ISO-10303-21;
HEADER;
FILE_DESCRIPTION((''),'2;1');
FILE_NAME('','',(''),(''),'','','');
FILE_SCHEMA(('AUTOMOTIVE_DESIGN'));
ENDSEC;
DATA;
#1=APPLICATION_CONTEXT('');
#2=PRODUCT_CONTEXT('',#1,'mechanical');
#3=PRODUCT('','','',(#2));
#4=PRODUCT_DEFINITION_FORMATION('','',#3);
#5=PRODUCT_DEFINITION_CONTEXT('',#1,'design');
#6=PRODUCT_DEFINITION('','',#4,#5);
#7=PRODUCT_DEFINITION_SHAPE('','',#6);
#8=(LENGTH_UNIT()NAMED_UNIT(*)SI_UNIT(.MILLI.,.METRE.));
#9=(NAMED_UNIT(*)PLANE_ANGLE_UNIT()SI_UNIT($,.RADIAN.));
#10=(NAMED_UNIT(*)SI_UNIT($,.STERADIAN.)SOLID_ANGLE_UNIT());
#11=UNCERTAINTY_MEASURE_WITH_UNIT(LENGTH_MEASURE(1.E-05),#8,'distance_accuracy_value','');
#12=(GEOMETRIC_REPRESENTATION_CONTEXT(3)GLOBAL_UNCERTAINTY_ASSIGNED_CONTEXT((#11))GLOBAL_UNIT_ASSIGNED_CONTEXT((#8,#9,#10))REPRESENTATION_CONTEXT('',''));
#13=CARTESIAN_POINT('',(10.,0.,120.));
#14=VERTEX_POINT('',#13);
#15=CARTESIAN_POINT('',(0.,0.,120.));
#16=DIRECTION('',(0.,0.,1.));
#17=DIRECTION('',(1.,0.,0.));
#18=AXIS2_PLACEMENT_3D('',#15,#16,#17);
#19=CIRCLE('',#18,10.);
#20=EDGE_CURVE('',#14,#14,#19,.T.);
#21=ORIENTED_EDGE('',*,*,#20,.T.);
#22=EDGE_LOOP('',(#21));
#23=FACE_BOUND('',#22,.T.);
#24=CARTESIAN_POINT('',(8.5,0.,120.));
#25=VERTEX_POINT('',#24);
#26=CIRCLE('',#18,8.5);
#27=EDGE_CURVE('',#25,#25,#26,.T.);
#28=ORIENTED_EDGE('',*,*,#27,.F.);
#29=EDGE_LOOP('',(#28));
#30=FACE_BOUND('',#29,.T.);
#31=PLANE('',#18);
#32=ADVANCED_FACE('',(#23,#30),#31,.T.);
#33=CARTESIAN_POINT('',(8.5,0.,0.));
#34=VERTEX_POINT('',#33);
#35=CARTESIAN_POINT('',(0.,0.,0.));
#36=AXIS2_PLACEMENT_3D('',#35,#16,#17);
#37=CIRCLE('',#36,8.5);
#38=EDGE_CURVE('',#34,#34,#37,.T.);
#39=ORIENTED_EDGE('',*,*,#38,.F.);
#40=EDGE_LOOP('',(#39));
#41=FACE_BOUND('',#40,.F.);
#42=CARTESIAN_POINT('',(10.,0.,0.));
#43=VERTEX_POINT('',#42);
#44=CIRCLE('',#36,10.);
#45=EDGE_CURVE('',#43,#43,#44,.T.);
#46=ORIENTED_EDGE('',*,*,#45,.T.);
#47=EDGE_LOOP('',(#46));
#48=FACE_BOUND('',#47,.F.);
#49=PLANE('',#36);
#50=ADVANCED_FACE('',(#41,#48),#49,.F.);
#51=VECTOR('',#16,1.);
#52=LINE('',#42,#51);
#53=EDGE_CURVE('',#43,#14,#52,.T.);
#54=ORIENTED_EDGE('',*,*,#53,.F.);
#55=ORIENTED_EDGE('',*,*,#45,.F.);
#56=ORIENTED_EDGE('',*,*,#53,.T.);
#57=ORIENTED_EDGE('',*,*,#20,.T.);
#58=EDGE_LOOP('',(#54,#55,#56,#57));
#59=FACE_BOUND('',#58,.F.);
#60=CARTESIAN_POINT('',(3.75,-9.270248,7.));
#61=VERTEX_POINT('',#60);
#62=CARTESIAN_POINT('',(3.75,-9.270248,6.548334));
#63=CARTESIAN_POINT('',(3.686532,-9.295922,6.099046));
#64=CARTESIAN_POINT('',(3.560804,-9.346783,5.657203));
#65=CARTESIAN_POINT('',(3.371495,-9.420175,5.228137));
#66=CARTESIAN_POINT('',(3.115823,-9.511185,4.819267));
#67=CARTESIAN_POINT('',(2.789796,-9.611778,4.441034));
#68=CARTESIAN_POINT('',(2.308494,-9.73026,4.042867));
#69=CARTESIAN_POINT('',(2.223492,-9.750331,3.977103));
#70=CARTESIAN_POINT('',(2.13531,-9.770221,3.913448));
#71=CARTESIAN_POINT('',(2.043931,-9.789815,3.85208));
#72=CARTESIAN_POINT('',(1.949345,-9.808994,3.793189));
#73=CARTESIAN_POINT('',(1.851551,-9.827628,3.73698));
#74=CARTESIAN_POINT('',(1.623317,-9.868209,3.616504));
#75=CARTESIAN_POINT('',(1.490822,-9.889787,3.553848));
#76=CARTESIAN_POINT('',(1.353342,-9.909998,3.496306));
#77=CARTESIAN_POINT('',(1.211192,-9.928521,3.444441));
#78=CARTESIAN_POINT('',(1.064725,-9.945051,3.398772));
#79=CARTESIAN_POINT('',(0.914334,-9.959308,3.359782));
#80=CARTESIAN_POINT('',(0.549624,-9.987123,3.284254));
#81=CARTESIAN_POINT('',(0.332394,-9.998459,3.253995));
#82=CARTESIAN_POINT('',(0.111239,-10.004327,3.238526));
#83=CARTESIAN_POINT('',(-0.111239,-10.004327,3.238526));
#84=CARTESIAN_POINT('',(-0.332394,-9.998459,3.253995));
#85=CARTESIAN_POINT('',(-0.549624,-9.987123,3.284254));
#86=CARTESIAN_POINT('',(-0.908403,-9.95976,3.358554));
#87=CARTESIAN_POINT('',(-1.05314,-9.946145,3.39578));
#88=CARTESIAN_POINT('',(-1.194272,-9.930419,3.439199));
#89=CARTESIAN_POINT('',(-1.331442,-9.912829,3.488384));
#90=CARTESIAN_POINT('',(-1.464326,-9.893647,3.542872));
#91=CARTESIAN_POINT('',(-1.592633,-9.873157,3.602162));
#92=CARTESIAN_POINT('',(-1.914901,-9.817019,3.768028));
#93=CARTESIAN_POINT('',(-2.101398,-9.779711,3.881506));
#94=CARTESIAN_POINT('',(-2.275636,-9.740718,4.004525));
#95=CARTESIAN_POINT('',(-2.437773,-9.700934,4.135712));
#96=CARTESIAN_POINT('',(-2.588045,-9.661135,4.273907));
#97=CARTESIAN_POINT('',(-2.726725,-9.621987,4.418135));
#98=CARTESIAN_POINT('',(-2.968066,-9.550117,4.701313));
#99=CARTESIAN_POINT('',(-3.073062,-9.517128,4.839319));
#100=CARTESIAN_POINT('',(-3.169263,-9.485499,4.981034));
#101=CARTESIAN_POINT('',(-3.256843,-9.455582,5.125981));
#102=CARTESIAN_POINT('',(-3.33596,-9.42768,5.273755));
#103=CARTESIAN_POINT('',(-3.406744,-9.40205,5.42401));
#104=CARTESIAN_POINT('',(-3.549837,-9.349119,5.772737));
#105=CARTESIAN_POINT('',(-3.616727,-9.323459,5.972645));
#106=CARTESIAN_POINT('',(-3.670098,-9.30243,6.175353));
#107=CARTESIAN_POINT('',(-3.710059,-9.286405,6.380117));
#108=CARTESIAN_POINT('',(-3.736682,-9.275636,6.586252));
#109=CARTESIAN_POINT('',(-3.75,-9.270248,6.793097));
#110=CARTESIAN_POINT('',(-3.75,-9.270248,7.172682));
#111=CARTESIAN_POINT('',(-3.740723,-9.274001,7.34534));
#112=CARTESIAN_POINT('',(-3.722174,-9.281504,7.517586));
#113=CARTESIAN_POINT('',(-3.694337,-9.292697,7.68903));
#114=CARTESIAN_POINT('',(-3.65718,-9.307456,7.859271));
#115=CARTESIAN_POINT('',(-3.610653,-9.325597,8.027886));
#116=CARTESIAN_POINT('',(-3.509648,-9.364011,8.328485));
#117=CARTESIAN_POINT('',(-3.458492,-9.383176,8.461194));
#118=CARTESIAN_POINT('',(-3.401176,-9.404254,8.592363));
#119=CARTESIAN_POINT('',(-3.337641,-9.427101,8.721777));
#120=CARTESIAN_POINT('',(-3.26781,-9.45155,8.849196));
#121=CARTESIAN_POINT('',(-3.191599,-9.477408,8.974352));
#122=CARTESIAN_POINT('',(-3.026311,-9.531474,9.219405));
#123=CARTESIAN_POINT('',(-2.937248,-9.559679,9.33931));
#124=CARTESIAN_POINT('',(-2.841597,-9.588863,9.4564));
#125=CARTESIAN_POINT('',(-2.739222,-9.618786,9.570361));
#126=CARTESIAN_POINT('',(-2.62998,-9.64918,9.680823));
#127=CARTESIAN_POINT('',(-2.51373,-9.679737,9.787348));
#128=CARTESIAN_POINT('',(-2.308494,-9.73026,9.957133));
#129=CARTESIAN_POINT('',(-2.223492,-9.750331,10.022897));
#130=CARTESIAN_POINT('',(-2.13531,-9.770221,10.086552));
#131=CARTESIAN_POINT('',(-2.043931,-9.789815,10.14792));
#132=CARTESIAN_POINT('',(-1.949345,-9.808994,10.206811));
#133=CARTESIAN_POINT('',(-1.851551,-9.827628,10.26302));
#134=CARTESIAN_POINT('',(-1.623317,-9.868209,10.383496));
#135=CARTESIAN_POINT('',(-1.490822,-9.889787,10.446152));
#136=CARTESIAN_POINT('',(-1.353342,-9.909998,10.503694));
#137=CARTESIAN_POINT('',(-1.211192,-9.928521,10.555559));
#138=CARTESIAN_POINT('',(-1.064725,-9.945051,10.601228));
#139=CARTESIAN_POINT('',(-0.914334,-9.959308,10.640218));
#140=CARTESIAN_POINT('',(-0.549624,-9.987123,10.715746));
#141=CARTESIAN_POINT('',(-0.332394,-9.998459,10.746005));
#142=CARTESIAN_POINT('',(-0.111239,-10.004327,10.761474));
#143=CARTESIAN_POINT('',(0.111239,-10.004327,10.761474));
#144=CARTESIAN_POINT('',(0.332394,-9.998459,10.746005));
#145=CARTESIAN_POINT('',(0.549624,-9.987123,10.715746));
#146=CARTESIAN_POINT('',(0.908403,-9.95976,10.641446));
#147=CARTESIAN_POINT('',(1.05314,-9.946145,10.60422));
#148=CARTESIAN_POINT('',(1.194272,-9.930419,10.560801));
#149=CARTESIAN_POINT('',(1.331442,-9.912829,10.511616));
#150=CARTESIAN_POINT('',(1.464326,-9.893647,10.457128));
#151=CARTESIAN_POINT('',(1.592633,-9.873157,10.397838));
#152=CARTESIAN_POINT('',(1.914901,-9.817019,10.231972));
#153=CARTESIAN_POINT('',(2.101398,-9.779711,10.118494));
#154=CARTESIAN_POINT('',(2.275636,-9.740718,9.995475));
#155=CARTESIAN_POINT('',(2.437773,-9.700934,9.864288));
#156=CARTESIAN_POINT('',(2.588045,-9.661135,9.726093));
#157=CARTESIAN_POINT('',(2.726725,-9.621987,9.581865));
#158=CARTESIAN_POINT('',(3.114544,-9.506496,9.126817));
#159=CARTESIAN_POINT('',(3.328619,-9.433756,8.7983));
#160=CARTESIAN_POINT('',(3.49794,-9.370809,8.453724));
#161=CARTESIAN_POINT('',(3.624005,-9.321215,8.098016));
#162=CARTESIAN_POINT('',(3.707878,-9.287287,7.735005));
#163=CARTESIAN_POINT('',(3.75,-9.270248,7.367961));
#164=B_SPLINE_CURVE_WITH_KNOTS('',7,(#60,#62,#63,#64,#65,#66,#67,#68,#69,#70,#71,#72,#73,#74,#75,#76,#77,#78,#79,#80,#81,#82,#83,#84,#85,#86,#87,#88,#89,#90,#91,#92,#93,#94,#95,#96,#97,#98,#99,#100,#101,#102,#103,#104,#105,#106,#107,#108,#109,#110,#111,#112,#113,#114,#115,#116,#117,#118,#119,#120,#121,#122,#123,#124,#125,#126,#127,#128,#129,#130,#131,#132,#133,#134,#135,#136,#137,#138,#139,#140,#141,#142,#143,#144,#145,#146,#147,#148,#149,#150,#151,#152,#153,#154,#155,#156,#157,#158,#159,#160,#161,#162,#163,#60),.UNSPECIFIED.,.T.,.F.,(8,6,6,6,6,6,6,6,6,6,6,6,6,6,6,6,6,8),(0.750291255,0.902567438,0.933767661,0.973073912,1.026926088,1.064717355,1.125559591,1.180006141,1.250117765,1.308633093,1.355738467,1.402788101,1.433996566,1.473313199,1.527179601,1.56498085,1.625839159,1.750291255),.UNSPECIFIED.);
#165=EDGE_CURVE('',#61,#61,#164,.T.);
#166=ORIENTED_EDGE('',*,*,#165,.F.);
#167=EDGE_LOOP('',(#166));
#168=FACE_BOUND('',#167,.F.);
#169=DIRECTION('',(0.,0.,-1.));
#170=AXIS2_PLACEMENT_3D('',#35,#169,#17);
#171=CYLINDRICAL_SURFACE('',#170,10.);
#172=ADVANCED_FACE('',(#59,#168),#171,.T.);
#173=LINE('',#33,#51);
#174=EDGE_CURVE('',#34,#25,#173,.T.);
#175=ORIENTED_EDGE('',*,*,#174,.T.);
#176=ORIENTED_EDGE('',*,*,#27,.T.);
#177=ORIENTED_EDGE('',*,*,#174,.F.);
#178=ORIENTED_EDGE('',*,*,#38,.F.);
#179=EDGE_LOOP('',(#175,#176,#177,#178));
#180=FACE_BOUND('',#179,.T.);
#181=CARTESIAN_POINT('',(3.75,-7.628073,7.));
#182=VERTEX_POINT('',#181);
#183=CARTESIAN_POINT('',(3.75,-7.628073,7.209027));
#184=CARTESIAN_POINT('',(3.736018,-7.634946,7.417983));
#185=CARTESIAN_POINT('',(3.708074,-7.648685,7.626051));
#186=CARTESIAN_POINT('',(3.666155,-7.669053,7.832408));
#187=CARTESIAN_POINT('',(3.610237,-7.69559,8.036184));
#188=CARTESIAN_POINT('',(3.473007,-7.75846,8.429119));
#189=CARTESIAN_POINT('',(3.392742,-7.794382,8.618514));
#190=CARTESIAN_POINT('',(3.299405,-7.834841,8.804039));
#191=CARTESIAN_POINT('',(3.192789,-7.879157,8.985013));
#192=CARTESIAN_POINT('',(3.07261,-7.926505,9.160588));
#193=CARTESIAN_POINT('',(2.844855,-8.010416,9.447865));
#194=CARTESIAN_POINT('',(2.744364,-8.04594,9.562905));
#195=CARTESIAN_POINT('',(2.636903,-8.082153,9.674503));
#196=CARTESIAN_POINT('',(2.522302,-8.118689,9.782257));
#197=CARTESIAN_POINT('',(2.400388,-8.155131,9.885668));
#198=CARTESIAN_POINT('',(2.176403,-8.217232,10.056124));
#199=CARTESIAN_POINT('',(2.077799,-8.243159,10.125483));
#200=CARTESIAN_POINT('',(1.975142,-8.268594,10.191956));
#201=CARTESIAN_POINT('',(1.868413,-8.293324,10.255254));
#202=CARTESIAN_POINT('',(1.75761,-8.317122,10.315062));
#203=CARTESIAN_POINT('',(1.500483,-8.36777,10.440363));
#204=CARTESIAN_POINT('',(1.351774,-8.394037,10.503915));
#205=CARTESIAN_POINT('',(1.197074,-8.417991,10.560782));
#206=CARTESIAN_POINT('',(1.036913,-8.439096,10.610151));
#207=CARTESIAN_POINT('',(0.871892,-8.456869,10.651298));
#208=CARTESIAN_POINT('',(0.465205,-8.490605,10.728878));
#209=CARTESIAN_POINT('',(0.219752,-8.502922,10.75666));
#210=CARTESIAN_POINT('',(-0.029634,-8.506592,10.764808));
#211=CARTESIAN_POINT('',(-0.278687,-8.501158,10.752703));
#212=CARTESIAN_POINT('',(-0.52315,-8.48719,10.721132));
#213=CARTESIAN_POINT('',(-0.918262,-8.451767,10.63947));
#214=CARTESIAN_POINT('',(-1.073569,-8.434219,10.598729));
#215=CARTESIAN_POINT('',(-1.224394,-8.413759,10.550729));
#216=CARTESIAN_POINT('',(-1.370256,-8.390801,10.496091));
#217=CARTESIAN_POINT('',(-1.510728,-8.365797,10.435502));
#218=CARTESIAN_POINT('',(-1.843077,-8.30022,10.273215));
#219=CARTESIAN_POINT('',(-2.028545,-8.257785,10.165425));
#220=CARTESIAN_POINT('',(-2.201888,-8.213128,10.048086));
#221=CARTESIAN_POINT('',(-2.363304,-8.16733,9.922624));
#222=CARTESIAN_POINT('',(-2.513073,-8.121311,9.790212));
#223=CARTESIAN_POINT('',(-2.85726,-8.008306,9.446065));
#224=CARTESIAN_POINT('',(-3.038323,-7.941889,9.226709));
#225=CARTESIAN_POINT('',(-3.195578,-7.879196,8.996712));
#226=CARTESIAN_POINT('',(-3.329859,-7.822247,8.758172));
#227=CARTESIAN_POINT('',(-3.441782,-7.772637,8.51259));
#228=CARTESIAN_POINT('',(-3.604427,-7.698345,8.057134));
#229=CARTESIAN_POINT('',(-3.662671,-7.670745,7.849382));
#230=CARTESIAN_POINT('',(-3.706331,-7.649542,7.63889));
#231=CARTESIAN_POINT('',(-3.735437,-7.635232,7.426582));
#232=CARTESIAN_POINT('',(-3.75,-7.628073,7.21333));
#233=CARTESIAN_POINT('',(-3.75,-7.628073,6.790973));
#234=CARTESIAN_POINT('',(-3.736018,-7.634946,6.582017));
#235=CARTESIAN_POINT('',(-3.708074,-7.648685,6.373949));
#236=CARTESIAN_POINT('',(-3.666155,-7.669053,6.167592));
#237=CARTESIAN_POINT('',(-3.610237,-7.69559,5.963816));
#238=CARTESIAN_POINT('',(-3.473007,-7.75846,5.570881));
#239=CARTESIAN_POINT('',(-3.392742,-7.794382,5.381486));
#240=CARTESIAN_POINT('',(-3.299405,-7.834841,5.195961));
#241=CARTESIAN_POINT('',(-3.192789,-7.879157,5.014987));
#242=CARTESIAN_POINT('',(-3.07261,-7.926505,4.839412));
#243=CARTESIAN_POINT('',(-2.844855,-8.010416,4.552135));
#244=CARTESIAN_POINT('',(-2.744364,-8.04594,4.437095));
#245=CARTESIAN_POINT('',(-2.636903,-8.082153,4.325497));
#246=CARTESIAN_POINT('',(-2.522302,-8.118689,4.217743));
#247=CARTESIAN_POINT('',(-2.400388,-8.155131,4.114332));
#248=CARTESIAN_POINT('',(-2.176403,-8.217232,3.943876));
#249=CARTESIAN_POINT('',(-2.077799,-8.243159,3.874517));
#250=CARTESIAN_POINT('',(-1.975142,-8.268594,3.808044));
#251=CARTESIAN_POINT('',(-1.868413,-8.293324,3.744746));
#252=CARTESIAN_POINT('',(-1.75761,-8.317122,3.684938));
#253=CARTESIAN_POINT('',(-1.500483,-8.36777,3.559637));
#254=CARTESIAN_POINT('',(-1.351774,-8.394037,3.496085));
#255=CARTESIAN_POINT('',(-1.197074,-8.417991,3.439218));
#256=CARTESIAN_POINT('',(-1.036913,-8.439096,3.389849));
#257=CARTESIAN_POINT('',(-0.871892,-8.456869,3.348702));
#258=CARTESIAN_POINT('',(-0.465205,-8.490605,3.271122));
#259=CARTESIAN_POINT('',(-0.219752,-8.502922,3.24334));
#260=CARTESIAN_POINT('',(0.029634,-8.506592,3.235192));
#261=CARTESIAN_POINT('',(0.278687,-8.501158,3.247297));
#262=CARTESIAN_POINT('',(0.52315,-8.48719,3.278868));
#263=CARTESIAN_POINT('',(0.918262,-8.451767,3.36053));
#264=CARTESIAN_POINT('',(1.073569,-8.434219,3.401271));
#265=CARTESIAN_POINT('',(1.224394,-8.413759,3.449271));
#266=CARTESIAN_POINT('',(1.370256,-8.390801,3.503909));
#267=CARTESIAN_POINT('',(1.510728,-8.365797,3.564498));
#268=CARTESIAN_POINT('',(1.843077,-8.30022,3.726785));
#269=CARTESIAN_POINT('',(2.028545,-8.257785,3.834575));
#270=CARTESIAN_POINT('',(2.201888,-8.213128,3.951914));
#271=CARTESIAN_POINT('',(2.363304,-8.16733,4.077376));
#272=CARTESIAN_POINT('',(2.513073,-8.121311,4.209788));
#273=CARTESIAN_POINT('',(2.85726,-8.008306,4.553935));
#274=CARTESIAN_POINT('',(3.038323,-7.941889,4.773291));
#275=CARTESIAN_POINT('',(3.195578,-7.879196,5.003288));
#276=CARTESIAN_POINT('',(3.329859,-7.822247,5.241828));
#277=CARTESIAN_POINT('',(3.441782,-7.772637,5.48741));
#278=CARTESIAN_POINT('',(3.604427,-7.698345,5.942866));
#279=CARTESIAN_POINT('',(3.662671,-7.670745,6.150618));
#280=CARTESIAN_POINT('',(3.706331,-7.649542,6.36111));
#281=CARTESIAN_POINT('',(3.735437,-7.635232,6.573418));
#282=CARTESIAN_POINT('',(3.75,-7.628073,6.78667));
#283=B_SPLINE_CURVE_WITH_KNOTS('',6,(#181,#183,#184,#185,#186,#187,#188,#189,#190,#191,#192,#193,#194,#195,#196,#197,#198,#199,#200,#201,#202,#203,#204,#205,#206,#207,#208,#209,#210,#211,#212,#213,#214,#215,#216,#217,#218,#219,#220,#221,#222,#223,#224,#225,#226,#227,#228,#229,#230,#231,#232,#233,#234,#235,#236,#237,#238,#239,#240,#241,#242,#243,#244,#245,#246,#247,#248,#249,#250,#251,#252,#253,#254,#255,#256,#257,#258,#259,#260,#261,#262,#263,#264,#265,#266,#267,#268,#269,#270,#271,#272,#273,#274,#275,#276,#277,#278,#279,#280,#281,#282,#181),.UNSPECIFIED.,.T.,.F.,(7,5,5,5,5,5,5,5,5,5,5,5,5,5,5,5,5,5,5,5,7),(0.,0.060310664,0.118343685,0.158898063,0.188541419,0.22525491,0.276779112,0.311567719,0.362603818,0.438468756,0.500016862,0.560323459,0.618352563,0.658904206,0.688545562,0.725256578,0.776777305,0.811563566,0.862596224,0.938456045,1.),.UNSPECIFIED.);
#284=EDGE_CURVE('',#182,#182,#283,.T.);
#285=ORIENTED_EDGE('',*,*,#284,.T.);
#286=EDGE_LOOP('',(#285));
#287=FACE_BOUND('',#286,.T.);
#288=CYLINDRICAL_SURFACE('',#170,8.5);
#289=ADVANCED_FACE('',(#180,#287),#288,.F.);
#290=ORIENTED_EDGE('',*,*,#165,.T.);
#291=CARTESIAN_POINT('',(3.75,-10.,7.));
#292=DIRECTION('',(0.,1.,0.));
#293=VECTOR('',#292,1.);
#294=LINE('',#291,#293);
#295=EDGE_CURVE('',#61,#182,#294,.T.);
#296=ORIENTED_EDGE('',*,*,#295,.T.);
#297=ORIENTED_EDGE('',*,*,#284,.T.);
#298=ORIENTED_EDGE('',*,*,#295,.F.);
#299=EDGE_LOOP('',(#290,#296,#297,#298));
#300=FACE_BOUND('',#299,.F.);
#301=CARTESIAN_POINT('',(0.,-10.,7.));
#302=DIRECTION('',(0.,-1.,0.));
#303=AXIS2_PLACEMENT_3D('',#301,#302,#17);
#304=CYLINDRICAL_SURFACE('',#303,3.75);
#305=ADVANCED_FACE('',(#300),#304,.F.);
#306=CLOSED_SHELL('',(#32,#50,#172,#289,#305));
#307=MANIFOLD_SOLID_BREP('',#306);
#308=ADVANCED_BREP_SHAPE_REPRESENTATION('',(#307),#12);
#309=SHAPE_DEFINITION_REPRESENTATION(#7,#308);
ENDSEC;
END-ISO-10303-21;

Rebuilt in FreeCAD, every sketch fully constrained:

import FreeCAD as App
import Part
import Sketcher
from FreeCAD import Vector

doc = App.newDocument("Part")
body = doc.addObject("PartDesign::Body", "Body")

sketch1 = body.newObject("Sketcher::SketchObject", "Sketch")
sketch1.AttachmentSupport = (doc.getObject("XY_Plane"), [""])
sketch1.MapMode = "FlatFace"
sketch1.addGeometry([
    Part.Circle(Vector(0, 0, 0), Vector(0, 0, 1), 10),
    Part.Circle(Vector(0, 0, 0), Vector(0, 0, 1), 8),
], False)
sketch1.addConstraint([
    Sketcher.Constraint("Coincident", 0, 3, -1, 1),
    Sketcher.Constraint("Coincident", 1, 3, -1, 1),
    Sketcher.Constraint("Diameter", 0, 20.0),
    Sketcher.Constraint("Diameter", 1, 17.0),
])
pad1 = body.newObject("PartDesign::Pad", "Pad")
pad1.Profile = sketch1
pad1.Length = 120

sketch2 = body.newObject("Sketcher::SketchObject", "Sketch001")
sketch2.AttachmentSupport = (doc.getObject("XZ_Plane"), [""])
sketch2.MapMode = "FlatFace"
sketch2.AttachmentOffset = App.Placement(Vector(0, 0, 10), App.Rotation())
sketch2.addGeometry(Part.Circle(Vector(0, 7, 0), Vector(0, 0, 1), 3.8), False)
sketch2.addConstraint([
    Sketcher.Constraint("PointOnObject", 0, 3, -2),
    Sketcher.Constraint("Diameter", 0, 7.5),
    Sketcher.Constraint("DistanceY", -1, 1, 0, 3, 7.0),
])
pocket1 = body.newObject("PartDesign::Pocket", "Pocket")
pocket1.Profile = sketch2
pocket1.Length = 3.371927

doc.recompute()
